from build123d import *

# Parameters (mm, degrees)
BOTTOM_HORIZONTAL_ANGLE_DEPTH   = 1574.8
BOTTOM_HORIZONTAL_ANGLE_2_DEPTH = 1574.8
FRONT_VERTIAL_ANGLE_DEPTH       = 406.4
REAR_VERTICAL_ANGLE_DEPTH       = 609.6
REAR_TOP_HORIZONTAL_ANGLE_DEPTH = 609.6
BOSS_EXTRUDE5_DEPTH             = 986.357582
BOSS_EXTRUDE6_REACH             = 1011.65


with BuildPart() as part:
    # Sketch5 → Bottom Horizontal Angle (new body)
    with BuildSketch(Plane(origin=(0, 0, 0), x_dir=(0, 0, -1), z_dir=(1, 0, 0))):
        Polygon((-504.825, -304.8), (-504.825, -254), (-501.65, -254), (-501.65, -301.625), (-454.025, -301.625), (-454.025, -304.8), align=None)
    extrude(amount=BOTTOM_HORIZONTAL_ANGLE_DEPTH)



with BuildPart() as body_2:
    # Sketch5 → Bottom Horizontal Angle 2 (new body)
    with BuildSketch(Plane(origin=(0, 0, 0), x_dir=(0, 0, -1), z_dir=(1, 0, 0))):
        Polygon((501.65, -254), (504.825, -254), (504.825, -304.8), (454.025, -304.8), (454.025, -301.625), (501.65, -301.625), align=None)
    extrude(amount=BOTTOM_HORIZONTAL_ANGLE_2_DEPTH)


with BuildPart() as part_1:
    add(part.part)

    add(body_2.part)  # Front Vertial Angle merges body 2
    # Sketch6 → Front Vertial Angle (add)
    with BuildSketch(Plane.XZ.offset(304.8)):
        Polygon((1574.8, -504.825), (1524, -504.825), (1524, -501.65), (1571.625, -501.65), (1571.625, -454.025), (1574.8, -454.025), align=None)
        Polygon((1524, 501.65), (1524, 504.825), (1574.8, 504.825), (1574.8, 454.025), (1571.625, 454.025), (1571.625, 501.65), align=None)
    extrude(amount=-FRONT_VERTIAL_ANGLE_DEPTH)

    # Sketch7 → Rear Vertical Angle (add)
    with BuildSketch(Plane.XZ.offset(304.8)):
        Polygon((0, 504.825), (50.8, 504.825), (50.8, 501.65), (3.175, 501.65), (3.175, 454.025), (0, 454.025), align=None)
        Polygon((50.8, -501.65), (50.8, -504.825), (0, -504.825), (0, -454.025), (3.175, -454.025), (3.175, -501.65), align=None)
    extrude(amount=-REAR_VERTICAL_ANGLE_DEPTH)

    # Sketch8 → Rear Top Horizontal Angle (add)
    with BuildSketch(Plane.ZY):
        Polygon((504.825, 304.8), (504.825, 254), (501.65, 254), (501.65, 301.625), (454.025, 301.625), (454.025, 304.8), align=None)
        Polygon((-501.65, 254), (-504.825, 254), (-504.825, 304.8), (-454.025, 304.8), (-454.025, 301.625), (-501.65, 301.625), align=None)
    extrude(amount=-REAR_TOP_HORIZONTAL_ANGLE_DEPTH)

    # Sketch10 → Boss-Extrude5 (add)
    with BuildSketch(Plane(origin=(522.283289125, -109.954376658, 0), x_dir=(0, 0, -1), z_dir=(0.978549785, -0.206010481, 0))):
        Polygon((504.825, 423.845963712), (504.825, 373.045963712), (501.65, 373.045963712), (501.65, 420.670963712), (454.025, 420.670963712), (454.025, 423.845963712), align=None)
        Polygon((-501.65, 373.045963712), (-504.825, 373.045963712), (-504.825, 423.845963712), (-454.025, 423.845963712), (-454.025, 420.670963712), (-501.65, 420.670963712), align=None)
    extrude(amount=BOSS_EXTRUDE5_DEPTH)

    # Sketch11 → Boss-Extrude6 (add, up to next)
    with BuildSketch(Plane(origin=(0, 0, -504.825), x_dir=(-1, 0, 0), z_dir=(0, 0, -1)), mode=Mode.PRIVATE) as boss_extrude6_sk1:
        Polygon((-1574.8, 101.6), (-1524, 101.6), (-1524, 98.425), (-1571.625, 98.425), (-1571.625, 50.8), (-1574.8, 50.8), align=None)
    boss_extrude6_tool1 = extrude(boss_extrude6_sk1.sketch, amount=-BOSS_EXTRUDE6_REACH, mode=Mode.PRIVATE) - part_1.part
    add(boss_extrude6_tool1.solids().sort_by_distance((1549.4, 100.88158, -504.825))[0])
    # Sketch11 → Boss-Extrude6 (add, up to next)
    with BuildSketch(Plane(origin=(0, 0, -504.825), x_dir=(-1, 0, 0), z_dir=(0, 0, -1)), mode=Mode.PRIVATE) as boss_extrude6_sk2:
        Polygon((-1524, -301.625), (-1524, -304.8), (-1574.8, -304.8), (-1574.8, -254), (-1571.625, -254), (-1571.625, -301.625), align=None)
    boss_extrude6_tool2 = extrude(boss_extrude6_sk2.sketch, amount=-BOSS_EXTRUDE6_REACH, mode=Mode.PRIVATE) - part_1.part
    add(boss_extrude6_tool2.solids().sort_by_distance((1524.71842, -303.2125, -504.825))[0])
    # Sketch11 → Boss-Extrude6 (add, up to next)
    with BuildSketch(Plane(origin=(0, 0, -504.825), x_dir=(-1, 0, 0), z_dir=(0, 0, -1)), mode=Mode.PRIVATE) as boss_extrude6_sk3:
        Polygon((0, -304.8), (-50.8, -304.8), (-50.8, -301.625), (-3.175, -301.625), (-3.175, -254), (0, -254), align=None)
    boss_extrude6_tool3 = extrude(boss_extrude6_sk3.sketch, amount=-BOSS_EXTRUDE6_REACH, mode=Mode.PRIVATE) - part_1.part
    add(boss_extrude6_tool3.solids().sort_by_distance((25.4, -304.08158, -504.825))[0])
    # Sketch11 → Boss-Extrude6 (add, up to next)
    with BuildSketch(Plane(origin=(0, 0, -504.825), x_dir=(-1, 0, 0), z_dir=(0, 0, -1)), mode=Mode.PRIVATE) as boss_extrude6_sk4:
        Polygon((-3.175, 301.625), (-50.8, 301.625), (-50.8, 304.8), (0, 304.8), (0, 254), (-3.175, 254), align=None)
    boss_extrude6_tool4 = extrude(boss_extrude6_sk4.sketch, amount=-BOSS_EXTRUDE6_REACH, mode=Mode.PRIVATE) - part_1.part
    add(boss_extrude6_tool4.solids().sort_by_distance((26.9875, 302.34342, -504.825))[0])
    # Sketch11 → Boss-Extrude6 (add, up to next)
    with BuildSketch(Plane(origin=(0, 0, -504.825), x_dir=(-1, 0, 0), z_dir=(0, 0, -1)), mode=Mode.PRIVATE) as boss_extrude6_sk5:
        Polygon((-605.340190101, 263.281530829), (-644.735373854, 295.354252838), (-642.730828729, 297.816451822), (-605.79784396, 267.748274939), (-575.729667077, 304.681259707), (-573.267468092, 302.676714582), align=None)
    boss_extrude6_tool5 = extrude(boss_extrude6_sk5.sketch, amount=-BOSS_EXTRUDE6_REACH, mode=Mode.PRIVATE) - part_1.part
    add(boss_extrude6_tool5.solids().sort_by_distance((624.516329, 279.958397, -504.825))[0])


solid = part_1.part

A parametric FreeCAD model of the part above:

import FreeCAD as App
import Part
import Sketcher
from FreeCAD import Vector
Q = App.Units.Quantity


def add_polygon(sketch, points):
    """Adds a closed chain of lines whose ends are joined by coincident constraints."""
    first, n = sketch.GeometryCount, len(points)
    for a, b in zip(points, points[1:] + points[:1]):
        sketch.addGeometry(Part.LineSegment(App.Vector(*a, 0), App.Vector(*b, 0)), False)
    for i in range(n):
        sketch.addConstraint(Sketcher.Constraint("Coincident", first + i, 2, first + (i + 1) % n, 1))

doc = App.newDocument("Part")
body = doc.addObject("PartDesign::Body", "Body")

sketch1 = doc.addObject("Sketcher::SketchObject", "Sketch")
body.addObject(sketch1)
sketch1.AttachmentSupport = (doc.YZ_Plane, [""])
sketch1.MapMode = "FlatFace"
add_polygon(sketch1, [(-254, 504.8), (-304.8, 504.8), (-304.8, 454), (-301.6, 454), (-301.6, 501.6), (-254, 501.6)])
sketch1.addConstraint([
    Sketcher.Constraint("Horizontal", 0),
    Sketcher.Constraint("Vertical", 1),
    Sketcher.Constraint("Horizontal", 2),
    Sketcher.Constraint("Vertical", 3),
    Sketcher.Constraint("Horizontal", 4),
    Sketcher.Constraint("Vertical", 5),
    Sketcher.Constraint("Equal", 0, 1),
    Sketcher.Constraint("Equal", 4, 3),
    Sketcher.Constraint("DistanceX", 0, 2, 0, 1, Q("2 in")),
    Sketcher.Constraint("DistanceX", 0, 2, -1, 1, Q("12 in")),
    Sketcher.Constraint("DistanceX", 2, 1, 2, 2, Q("0.125 in")),
    Sketcher.Constraint("DistanceY", -1, 1, 3, 2, Q("19.75 in")),
])
pad1 = doc.addObject("PartDesign::Pad", "Pad")
body.addObject(pad1)
pad1.Profile = sketch1
pad1.Length = Q("62 in")
body2 = doc.addObject("PartDesign::Body", "Body001")

sketch2 = doc.addObject("Sketcher::SketchObject", "Sketch001")
body2.addObject(sketch2)
sketch2.AttachmentSupport = (doc.getObject("YZ_Plane001"), [""])
sketch2.MapMode = "FlatFace"
add_polygon(sketch2, [(-254, -504.8), (-254, -501.6), (-301.6, -501.6), (-301.6, -454), (-304.8, -454), (-304.8, -504.8)])
sketch2.addConstraint([
    Sketcher.Constraint("Vertical", 0),
    Sketcher.Constraint("Horizontal", 1),
    Sketcher.Constraint("Vertical", 2),
    Sketcher.Constraint("Horizontal", 3),
    Sketcher.Constraint("Vertical", 4),
    Sketcher.Constraint("Horizontal", 5),
    Sketcher.Constraint("Equal", 3, 0),
    Sketcher.Constraint("Equal", 1, 2),
    Sketcher.Constraint("DistanceX", 5, 1, 5, 2, Q("2 in")),
    Sketcher.Constraint("DistanceX", 0, 2, -1, 1, Q("10 in")),
    Sketcher.Constraint("DistanceX", 1, 2, 1, 1, Q("1.875 in")),
    Sketcher.Constraint("DistanceY", 0, 2, -1, 1, Q("19.75 in")),
])
pad2 = doc.addObject("PartDesign::Pad", "Pad001")
body2.addObject(pad2)
pad2.Profile = sketch2
pad2.Length = Q("62 in")
body.AllowCompound = True
doc.recompute()

boolean = doc.addObject("PartDesign::Boolean", "Boolean")
body.addObject(boolean)
boolean.Type = "Fuse"
boolean.addObjects([body2])

sketch3 = doc.addObject("Sketcher::SketchObject", "Sketch002")
body.addObject(sketch3)
sketch3.AttachmentSupport = (doc.XZ_Plane, [""])
sketch3.MapMode = "FlatFace"
sketch3.AttachmentOffset = App.Placement(Vector(0, 0, 12 * 25.4), App.Rotation())
add_polygon(sketch3, [(1524, -504.8), (1574.8, -504.8), (1574.8, -454), (1571.6, -454), (1571.6, -501.6), (1524, -501.6)])
add_polygon(sketch3, [(1524, 504.8), (1524, 501.6), (1571.6, 501.6), (1571.6, 454), (1574.8, 454), (1574.8, 504.8)])
sketch3.addConstraint([
    Sketcher.Constraint("Horizontal", 0),
    Sketcher.Constraint("Vertical", 1),
    Sketcher.Constraint("Horizontal", 2),
    Sketcher.Constraint("Vertical", 3),
    Sketcher.Constraint("Horizontal", 4),
    Sketcher.Constraint("Vertical", 5),
    Sketcher.Constraint("Vertical", 6),
    Sketcher.Constraint("Horizontal", 7),
    Sketcher.Constraint("Vertical", 8),
    Sketcher.Constraint("Horizontal", 9),
    Sketcher.Constraint("Vertical", 10),
    Sketcher.Constraint("Horizontal", 11),
    Sketcher.Constraint("Symmetric", 4, 2, 6, 2, -1),
    Sketcher.Constraint("Symmetric", 2, 2, 8, 2, -1),
    Sketcher.Constraint("Symmetric", 0, 2, 10, 2, -1),
    Sketcher.Constraint("Equal", 11, 1),
    Sketcher.Constraint("Equal", 7, 3),
    Sketcher.Constraint("DistanceX", 0, 1, 0, 2, Q("2 in")),
    Sketcher.Constraint("DistanceX", -1, 1, 0, 2, Q("62 in")),
    Sketcher.Constraint("DistanceY", 4, 2, 6, 2, Q("39.5 in")),
    Sketcher.Constraint("DistanceX", 2, 2, 2, 1, Q("0.125 in")),
])
pad3 = doc.addObject("PartDesign::Pad", "Pad002")
body.addObject(pad3)
pad3.Profile = sketch3
pad3.Length = Q("16 in")
pad3.Reversed = True

sketch4 = doc.addObject("Sketcher::SketchObject", "Sketch003")
body.addObject(sketch4)
sketch4.AttachmentSupport = (doc.XZ_Plane, [""])
sketch4.MapMode = "FlatFace"
sketch4.AttachmentOffset = App.Placement(Vector(0, 0, 12 * 25.4), App.Rotation())
add_polygon(sketch4, [(50.8, 504.8), (0, 504.8), (0, 454), (3.2, 454), (3.2, 501.6), (50.8, 501.6)])
add_polygon(sketch4, [(50.8, -504.8), (50.8, -501.6), (3.2, -501.6), (3.2, -454), (0, -454), (0, -504.8)])
sketch4.addConstraint([
    Sketcher.Constraint("Horizontal", 0),
    Sketcher.Constraint("Vertical", 1),
    Sketcher.Constraint("Horizontal", 2),
    Sketcher.Constraint("Vertical", 3),
    Sketcher.Constraint("Horizontal", 4),
    Sketcher.Constraint("Vertical", 5),
    Sketcher.Constraint("Vertical", 6),
    Sketcher.Constraint("Horizontal", 7),
    Sketcher.Constraint("Vertical", 8),
    Sketcher.Constraint("Horizontal", 9),
    Sketcher.Constraint("Vertical", 10),
    Sketcher.Constraint("Horizontal", 11),
    Sketcher.Constraint("Symmetric", 1, 2, 9, 2, -1, 1),
    Sketcher.Constraint("Symmetric", 4, 2, 6, 2, -1),
    Sketcher.Constraint("Symmetric", 0, 2, 10, 2, -1),
    Sketcher.Constraint("Vertical", 3, 2, 7, 2),
    Sketcher.Constraint("Equal", 11, 1),
    Sketcher.Constraint("Equal", 7, 3),
    Sketcher.Constraint("DistanceX", 0, 2, 0, 1, Q("2 in")),
    Sketcher.Constraint("DistanceY", 6, 2, 4, 2, Q("39.5 in")),
    Sketcher.Constraint("DistanceX", 2, 1, 2, 2, Q("0.125 in")),
])
pad4 = doc.addObject("PartDesign::Pad", "Pad003")
body.addObject(pad4)
pad4.Profile = sketch4
pad4.Length = Q("24 in")
pad4.Reversed = True

sketch5 = doc.addObject("Sketcher::SketchObject", "Sketch004")
body.addObject(sketch5)
sketch5.AttachmentSupport = (doc.YZ_Plane, [""])
sketch5.MapMode = "FlatFace"
add_polygon(sketch5, [(254, 504.8), (304.8, 504.8), (304.8, 454), (301.6, 454), (301.6, 501.6), (254, 501.6)])
add_polygon(sketch5, [(254, -504.8), (254, -501.6), (301.6, -501.6), (301.6, -454), (304.8, -454), (304.8, -504.8)])
sketch5.addConstraint([
    Sketcher.Constraint("Horizontal", 0),
    Sketcher.Constraint("Vertical", 1),
    Sketcher.Constraint("Horizontal", 2),
    Sketcher.Constraint("Vertical", 3),
    Sketcher.Constraint("Horizontal", 4),
    Sketcher.Constraint("Vertical", 5),
    Sketcher.Constraint("Vertical", 6),
    Sketcher.Constraint("Horizontal", 7),
    Sketcher.Constraint("Vertical", 8),
    Sketcher.Constraint("Horizontal", 9),
    Sketcher.Constraint("Vertical", 10),
    Sketcher.Constraint("Horizontal", 11),
    Sketcher.Constraint("Symmetric", 4, 2, 6, 2, -1),
    Sketcher.Constraint("Symmetric", 2, 2, 8, 2, -1),
    Sketcher.Constraint("Symmetric", 0, 2, 10, 2, -1),
    Sketcher.Constraint("Equal", 11, 1),
    Sketcher.Constraint("Equal", 7, 3),
    Sketcher.Constraint("DistanceX", 0, 1, 0, 2, Q("2 in")),
    Sketcher.Constraint("DistanceX", -1, 1, 0, 2, Q("12 in")),
    Sketcher.Constraint("DistanceY", 6, 2, 4, 2, Q("39.5 in")),
    Sketcher.Constraint("DistanceX", 2, 2, 2, 1, Q("0.125 in")),
])
pad5 = doc.addObject("PartDesign::Pad", "Pad004")
body.addObject(pad5)
pad5.Profile = sketch5
pad5.Length = Q("24 in")

sketch6 = doc.addObject("Sketcher::SketchObject", "Sketch005")
body.addObject(sketch6)
sketch6.Placement = App.Placement(Vector(522.283289, -109.954377, 0), App.Rotation(Vector(0, 0, -1), Vector(0.206010481, 0.978549785, 0), Vector(0.978549785, -0.206010481, 0), "ZXY"))
add_polygon(sketch6, [(504.8, 373), (504.8, 423.8), (454, 423.8), (454, 420.7), (501.6, 420.7), (501.6, 373)])
add_polygon(sketch6, [(-504.8, 373), (-501.6, 373), (-501.6, 420.7), (-454, 420.7), (-454, 423.8), (-504.8, 423.8)])
sketch6.addConstraint([
    Sketcher.Constraint("Vertical", 0),
    Sketcher.Constraint("Horizontal", 1),
    Sketcher.Constraint("Vertical", 2),
    Sketcher.Constraint("Horizontal", 3),
    Sketcher.Constraint("Vertical", 4),
    Sketcher.Constraint("Horizontal", 5),
    Sketcher.Constraint("Horizontal", 6),
    Sketcher.Constraint("Vertical", 7),
    Sketcher.Constraint("Horizontal", 8),
    Sketcher.Constraint("Vertical", 9),
    Sketcher.Constraint("Horizontal", 10),
    Sketcher.Constraint("Vertical", 11),
    Sketcher.Constraint("Symmetric", 4, 2, 6, 2, -2),
    Sketcher.Constraint("Symmetric", 2, 2, 8, 2, -2),
    Sketcher.Constraint("Symmetric", 0, 2, 10, 2, -2),
    Sketcher.Constraint("Equal", 10, 0),
    Sketcher.Constraint("Equal", 6, 2),
    Sketcher.Constraint("DistanceX", 1, 2, 1, 1, Q("2 in")),
    Sketcher.Constraint("DistanceX", 6, 2, 4, 2, Q("39.5 in")),
    Sketcher.Constraint("DistanceX", 3, 1, 3, 2, Q("1.875 in")),
    Sketcher.Constraint("DistanceY", -1, 1, 0, 2, Q("423.845964 mm")),
])
pad6 = doc.addObject("PartDesign::Pad", "Pad005")
body.addObject(pad6)
pad6.Profile = sketch6
pad6.Length = 986.357582

sketch7 = doc.addObject("Sketcher::SketchObject", "Sketch006")
body.addObject(sketch7)
sketch7.AttachmentSupport = (doc.XY_Plane, [""])
sketch7.MapMode = "FlatFace"
sketch7.AttachmentOffset = App.Placement(Vector(0, 0, -19.875 * 25.4), App.Rotation())
add_polygon(sketch7, [(1524, 101.6), (1574.8, 101.6), (1574.8, 50.8), (1571.6, 50.8), (1571.6, 98.4), (1524, 98.4)])
sketch7.addConstraint([
    Sketcher.Constraint("Horizontal", 0),
    Sketcher.Constraint("Vertical", 1),
    Sketcher.Constraint("Horizontal", 2),
    Sketcher.Constraint("Vertical", 3),
    Sketcher.Constraint("Horizontal", 4),
    Sketcher.Constraint("Vertical", 5),
    Sketcher.Constraint("Equal", 0, 1),
    Sketcher.Constraint("Equal", 4, 3),
    Sketcher.Constraint("DistanceX", 0, 1, 0, 2, Q("2 in")),
    Sketcher.Constraint("DistanceX", -1, 1, 0, 2, Q("62 in")),
    Sketcher.Constraint("DistanceY", -1, 1, 0, 2, Q("4 in")),
    Sketcher.Constraint("DistanceX", 2, 2, 2, 1, Q("0.125 in")),
])
pad7 = doc.addObject("PartDesign::Pad", "Pad006")
body.addObject(pad7)
pad7.Profile = sketch7
pad7.Length = Q("39.625 in")

sketch8 = doc.addObject("Sketcher::SketchObject", "Sketch007")
body.addObject(sketch8)
sketch8.AttachmentSupport = (doc.XY_Plane, [""])
sketch8.MapMode = "FlatFace"
sketch8.AttachmentOffset = App.Placement(Vector(0, 0, -19.875 * 25.4), App.Rotation())
add_polygon(sketch8, [(1524, -304.8), (1524, -301.6), (1571.6, -301.6), (1571.6, -254), (1574.8, -254), (1574.8, -304.8)])
sketch8.addConstraint([
    Sketcher.Constraint("Vertical", 0),
    Sketcher.Constraint("Horizontal", 1),
    Sketcher.Constraint("Vertical", 2),
    Sketcher.Constraint("Horizontal", 3),
    Sketcher.Constraint("Vertical", 4),
    Sketcher.Constraint("Horizontal", 5),
    Sketcher.Constraint("Equal", 3, 0),
    Sketcher.Constraint("Equal", 1, 2),
    Sketcher.Constraint("DistanceX", 5, 2, 5, 1, Q("2 in")),
    Sketcher.Constraint("DistanceX", -1, 1, 0, 2, Q("60 in")),
    Sketcher.Constraint("DistanceY", 2, 2, -1, 1, Q("10 in")),
    Sketcher.Constraint("DistanceX", 1, 1, 1, 2, Q("1.875 in")),
])
pad8 = doc.addObject("PartDesign::Pad", "Pad007")
body.addObject(pad8)
pad8.Profile = sketch8
pad8.Length = Q("37.75 in")

sketch9 = doc.addObject("Sketcher::SketchObject", "Sketch008")
body.addObject(sketch9)
sketch9.AttachmentSupport = (doc.XY_Plane, [""])
sketch9.MapMode = "FlatFace"
sketch9.AttachmentOffset = App.Placement(Vector(0, 0, -19.875 * 25.4), App.Rotation())
add_polygon(sketch9, [(50.8, -304.8), (0, -304.8), (0, -254), (3.2, -254), (3.2, -301.6), (50.8, -301.6)])
sketch9.addConstraint([
    Sketcher.Constraint("Horizontal", 0),
    Sketcher.Constraint("Vertical", 1),
    Sketcher.Constraint("Horizontal", 2),
    Sketcher.Constraint("Vertical", 3),
    Sketcher.Constraint("Horizontal", 4),
    Sketcher.Constraint("Vertical", 5),
    Sketcher.Constraint("PointOnObject", 0, 2, -2),
    Sketcher.Constraint("Equal", 0, 1),
    Sketcher.Constraint("Equal", 4, 3),
    Sketcher.Constraint("DistanceX", 0, 2, 0, 1, Q("2 in")),
    Sketcher.Constraint("DistanceY", 0, 2, -1, 1, Q("12 in")),
    Sketcher.Constraint("DistanceX", 2, 1, 2, 2, Q("0.125 in")),
])
pad9 = doc.addObject("PartDesign::Pad", "Pad008")
body.addObject(pad9)
pad9.Profile = sketch9
pad9.Length = Q("37.75 in")

sketch10 = doc.addObject("Sketcher::SketchObject", "Sketch009")
body.addObject(sketch10)
sketch10.AttachmentSupport = (doc.XY_Plane, [""])
sketch10.MapMode = "FlatFace"
sketch10.AttachmentOffset = App.Placement(Vector(0, 0, -19.875 * 25.4), App.Rotation())
add_polygon(sketch10, [(50.8, 301.6), (3.2, 301.6), (3.2, 254), (0, 254), (0, 304.8), (50.8, 304.8)])
sketch10.addConstraint([
    Sketcher.Constraint("Horizontal", 0),
    Sketcher.Constraint("Vertical", 1),
    Sketcher.Constraint("Horizontal", 2),
    Sketcher.Constraint("Vertical", 3),
    Sketcher.Constraint("Horizontal", 4),
    Sketcher.Constraint("Vertical", 5),
    Sketcher.Constraint("PointOnObject", 2, 2, -2),
    Sketcher.Constraint("Equal", 0, 1),
    Sketcher.Constraint("Equal", 4, 3),
    Sketcher.Constraint("DistanceX", 4, 1, 4, 2, Q("2 in")),
    Sketcher.Constraint("DistanceY", -1, 1, 1, 2, Q("10 in")),
    Sketcher.Constraint("DistanceX", 0, 2, 0, 1, Q("1.875 in")),
])
pad10 = doc.addObject("PartDesign::Pad", "Pad009")
body.addObject(pad10)
pad10.Profile = sketch10
pad10.Length = Q("37.75 in")

sketch11 = doc.addObject("Sketcher::SketchObject", "Sketch010")
body.addObject(sketch11)
sketch11.AttachmentSupport = (doc.XY_Plane, [""])
sketch11.MapMode = "FlatFace"
sketch11.AttachmentOffset = App.Placement(Vector(0, 0, -19.875 * 25.4), App.Rotation())
add_polygon(sketch11, [(644.7, 295.4), (605.3, 263.3), (573.3, 302.7), (575.7, 304.7), (605.8, 267.7), (642.7, 297.8)])
sketch11.addConstraint([
    Sketcher.Constraint("Perpendicular", 0, 1),
    Sketcher.Constraint("Perpendicular", 1, 2),
    Sketcher.Constraint("Perpendicular", 2, 3),
    Sketcher.Constraint("Perpendicular", 3, 4),
    Sketcher.Constraint("Perpendicular", 4, 5),
    Sketcher.Constraint("Equal", 0, 1),
    Sketcher.Constraint("Equal", 3, 4),
    Sketcher.Constraint("Distance", 0, Q("2 in")),
    Sketcher.Constraint("Angle", 0, Q("-140.85 deg")),
    Sketcher.Constraint("Distance", 2, Q("0.125 in")),
    Sketcher.Constraint("DistanceX", -1, 1, 0, 2, Q("605.34019 mm")),
    Sketcher.Constraint("DistanceY", -1, 1, 0, 2, Q("263.281531 mm")),
])
pad11 = doc.addObject("PartDesign::Pad", "Pad010")
body.addObject(pad11)
pad11.Profile = sketch11
pad11.Length = Q("39.625 in")

doc.recompute()
